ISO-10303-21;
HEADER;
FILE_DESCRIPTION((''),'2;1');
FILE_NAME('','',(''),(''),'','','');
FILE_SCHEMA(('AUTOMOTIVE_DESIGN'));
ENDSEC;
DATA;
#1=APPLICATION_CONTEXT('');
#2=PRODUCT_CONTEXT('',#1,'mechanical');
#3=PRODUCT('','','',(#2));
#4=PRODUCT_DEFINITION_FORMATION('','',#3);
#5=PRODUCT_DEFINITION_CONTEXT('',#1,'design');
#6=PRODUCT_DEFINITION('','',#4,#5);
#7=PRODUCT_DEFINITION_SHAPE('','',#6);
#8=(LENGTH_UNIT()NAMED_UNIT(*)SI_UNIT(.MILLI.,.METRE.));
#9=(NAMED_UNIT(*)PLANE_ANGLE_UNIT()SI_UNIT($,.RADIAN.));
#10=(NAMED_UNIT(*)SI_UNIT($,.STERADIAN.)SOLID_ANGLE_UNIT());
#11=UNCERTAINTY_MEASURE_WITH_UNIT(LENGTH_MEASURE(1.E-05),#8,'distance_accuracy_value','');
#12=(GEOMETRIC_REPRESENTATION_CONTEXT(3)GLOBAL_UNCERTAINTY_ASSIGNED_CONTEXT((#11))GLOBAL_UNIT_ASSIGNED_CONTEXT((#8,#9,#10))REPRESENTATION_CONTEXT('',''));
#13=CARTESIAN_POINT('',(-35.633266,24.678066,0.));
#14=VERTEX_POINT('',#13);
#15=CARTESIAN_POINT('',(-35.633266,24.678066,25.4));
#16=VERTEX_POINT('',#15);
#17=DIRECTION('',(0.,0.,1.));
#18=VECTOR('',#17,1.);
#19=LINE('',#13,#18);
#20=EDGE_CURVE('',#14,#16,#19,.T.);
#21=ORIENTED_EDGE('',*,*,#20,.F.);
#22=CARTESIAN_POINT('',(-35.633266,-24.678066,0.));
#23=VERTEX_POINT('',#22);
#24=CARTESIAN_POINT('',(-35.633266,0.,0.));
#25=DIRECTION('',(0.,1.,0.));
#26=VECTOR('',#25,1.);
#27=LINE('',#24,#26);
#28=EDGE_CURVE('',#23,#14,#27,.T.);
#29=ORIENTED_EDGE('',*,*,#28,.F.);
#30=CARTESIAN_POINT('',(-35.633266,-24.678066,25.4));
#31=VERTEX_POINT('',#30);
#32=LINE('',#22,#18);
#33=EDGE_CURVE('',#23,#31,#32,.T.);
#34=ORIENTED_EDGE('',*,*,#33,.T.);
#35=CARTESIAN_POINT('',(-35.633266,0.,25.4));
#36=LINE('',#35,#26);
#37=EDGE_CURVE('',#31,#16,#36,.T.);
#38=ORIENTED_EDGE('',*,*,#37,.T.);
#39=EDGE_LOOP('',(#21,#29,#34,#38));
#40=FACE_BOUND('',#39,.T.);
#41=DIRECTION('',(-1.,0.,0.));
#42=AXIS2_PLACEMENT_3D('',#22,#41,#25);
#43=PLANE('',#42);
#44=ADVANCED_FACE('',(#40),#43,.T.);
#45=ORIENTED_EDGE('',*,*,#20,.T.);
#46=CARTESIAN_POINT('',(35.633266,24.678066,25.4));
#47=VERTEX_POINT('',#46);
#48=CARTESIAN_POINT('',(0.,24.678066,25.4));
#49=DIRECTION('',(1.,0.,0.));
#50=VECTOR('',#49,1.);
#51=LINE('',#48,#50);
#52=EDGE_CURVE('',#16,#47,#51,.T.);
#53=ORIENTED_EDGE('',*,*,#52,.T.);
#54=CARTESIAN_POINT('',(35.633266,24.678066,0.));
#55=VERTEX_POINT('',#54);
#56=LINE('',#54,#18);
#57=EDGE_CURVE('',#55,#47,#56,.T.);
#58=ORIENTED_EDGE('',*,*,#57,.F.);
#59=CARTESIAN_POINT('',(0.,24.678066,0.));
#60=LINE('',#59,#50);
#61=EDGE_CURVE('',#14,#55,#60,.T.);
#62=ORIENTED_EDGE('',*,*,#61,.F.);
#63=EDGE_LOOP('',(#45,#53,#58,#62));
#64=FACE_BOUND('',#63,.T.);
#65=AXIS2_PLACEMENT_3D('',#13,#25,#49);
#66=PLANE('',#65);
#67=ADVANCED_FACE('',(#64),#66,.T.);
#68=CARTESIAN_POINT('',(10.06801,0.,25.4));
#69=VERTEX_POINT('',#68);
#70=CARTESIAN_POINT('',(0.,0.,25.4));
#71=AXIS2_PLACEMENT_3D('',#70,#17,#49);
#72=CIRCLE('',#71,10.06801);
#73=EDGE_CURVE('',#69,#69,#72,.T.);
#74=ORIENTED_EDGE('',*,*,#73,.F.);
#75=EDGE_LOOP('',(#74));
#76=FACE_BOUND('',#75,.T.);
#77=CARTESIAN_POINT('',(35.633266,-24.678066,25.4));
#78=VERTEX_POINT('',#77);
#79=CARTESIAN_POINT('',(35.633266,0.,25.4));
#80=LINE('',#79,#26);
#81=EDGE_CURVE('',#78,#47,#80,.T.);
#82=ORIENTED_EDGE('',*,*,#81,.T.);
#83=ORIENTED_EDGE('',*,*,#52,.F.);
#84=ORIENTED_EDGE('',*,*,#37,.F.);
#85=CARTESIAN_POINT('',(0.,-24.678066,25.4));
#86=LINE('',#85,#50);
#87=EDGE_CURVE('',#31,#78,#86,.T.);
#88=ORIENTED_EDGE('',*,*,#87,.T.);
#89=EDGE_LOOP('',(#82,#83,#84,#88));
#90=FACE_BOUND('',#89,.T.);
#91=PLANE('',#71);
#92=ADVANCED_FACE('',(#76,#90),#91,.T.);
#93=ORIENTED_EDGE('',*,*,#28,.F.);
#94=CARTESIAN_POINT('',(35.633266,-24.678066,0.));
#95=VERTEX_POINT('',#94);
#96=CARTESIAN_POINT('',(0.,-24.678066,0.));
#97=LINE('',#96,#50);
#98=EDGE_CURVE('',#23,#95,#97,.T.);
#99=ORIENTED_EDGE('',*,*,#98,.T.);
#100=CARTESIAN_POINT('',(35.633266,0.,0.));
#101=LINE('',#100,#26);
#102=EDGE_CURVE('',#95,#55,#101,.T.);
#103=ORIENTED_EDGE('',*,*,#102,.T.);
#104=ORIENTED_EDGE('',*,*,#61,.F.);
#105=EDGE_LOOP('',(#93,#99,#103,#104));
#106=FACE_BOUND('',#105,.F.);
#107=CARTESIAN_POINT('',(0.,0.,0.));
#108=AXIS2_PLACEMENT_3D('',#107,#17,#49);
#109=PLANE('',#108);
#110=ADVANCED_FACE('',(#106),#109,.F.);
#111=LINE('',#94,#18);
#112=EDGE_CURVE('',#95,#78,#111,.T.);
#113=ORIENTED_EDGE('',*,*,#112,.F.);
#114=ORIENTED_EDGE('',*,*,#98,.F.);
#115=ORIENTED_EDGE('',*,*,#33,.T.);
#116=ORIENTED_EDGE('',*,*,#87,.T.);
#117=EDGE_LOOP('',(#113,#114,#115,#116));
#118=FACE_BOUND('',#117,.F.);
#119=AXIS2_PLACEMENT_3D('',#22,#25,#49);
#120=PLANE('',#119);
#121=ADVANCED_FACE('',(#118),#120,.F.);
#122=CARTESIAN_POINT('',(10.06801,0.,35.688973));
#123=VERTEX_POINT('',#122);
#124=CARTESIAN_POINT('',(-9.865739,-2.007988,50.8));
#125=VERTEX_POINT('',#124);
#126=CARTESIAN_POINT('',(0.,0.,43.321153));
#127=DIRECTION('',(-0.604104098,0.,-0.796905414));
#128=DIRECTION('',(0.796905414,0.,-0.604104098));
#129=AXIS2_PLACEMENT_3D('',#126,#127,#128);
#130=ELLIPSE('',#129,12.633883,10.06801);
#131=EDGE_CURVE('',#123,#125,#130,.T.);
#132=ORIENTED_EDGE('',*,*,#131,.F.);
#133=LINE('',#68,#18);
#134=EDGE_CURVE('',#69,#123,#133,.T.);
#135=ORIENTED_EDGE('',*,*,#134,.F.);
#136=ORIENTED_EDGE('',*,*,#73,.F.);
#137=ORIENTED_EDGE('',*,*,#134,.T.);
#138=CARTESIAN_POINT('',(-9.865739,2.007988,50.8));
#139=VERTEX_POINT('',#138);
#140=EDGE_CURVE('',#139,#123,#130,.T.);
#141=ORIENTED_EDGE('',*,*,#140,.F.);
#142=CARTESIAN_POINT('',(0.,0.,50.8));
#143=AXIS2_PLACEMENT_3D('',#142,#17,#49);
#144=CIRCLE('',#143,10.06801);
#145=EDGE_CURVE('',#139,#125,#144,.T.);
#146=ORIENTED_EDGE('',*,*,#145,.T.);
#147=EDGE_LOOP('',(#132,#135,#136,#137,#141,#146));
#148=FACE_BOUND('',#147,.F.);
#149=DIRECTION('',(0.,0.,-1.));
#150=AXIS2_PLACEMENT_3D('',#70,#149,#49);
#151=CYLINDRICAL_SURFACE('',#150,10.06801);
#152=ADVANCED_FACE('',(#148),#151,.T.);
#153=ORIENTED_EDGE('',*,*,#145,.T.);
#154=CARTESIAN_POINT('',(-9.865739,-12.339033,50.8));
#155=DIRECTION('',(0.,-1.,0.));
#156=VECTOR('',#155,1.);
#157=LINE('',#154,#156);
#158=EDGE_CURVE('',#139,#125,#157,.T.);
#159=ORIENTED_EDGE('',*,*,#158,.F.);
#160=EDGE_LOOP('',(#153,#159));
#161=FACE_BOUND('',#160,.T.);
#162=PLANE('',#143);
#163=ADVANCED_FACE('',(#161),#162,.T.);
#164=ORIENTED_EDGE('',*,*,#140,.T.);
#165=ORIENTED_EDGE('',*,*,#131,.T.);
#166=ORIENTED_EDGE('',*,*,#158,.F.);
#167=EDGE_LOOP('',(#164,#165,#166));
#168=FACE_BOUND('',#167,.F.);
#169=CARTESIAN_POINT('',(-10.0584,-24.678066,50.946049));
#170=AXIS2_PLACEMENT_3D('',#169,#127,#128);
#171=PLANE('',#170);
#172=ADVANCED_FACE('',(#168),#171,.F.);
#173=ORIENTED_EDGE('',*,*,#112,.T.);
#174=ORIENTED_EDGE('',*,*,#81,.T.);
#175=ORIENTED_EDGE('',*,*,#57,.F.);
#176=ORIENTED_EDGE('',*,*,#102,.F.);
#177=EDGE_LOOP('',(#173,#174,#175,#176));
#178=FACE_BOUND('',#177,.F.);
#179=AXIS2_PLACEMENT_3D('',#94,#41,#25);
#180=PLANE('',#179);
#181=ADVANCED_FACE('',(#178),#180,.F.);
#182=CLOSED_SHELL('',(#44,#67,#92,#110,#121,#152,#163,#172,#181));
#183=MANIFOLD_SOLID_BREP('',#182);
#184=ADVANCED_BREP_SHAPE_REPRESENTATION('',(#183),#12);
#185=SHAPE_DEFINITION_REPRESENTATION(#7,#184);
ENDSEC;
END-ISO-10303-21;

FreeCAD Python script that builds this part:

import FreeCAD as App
import Part
import Sketcher
Q = App.Units.Quantity

doc = App.newDocument("Part")
body = doc.addObject("PartDesign::Body", "Body")

# Sketch on XY plane
sketch1 = body.newObject("Sketcher::SketchObject", "Sketch")
sketch1.AttachmentSupport = (doc.getObject("XY_Plane"), [""])
sketch1.MapMode = "FlatFace"
sketch1.addGeometry([
    Part.LineSegment(App.Vector(-36, 25, 0), App.Vector(-36, -25, 0)),
    Part.LineSegment(App.Vector(-36, -25, 0), App.Vector(36, -25, 0)),
    Part.LineSegment(App.Vector(36, -25, 0), App.Vector(36, 25, 0)),
    Part.LineSegment(App.Vector(36, 25, 0), App.Vector(-36, 25, 0)),
], False)
sketch1.addConstraint([
    Sketcher.Constraint("Coincident", 0, 2, 1, 1),
    Sketcher.Constraint("Coincident", 1, 2, 2, 1),
    Sketcher.Constraint("Coincident", 2, 2, 3, 1),
    Sketcher.Constraint("Coincident", 3, 2, 0, 1),
    Sketcher.Constraint("Vertical", 0),
    Sketcher.Constraint("Horizontal", 1),
    Sketcher.Constraint("Vertical", 2),
    Sketcher.Constraint("Horizontal", 3),
    Sketcher.Constraint("Symmetric", 0, 2, 2, 2, -1, 1),
    Sketcher.Constraint("DistanceX", 1, 1, 1, 2, 71.266532),
    Sketcher.Constraint("DistanceY", 0, 2, 0, 1, 49.356132),
])
pad1 = body.newObject("PartDesign::Pad", "Pad")
pad1.Profile = sketch1
pad1.Length = Q("1 in")

# Sketch on XY plane
sketch2 = body.newObject("Sketcher::SketchObject", "Sketch001")
sketch2.AttachmentSupport = (doc.getObject("XY_Plane"), [""])
sketch2.MapMode = "FlatFace"
sketch2.AttachmentOffset = App.Placement(App.Vector(0, 0, 1 * 25.4), App.Rotation())
sketch2.addGeometry(Part.Circle(App.Vector(0, 0, 0), App.Vector(0, 0, 1), 10), False)
sketch2.addConstraint([
    Sketcher.Constraint("Coincident", 0, 3, -1, 1),
    Sketcher.Constraint("Diameter", 0, 20.13602),
])
pad2 = body.newObject("PartDesign::Pad", "Pad001")
pad2.Profile = sketch2
pad2.Length = Q("1 in")

# Sketch on XZ plane
sketch3 = body.newObject("Sketcher::SketchObject", "Sketch002")
sketch3.AttachmentSupport = (doc.getObject("XZ_Plane"), [""])
sketch3.MapMode = "FlatFace"
sketch3.AttachmentOffset = App.Placement(App.Vector(0, 0, 24.678066), App.Rotation())
sketch3.addGeometry([
    Part.LineSegment(App.Vector(16, 51, 0), App.Vector(-10, 51, 0)),
    Part.LineSegment(App.Vector(-10, 51, 0), App.Vector(16, 31, 0)),
    Part.LineSegment(App.Vector(16, 31, 0), App.Vector(16, 51, 0)),
], False)
sketch3.addConstraint([
    Sketcher.Constraint("Coincident", 0, 2, 1, 1),
    Sketcher.Constraint("Coincident", 1, 2, 2, 1),
    Sketcher.Constraint("Coincident", 2, 2, 0, 1),
    Sketcher.Constraint("Horizontal", 0),
    Sketcher.Constraint("Vertical", 2),
    Sketcher.Constraint("DistanceX", 0, 2, -1, 1, Q("0.396 in")),
    Sketcher.Constraint("DistanceY", 2, 1, 2, 2, 19.589029),
    Sketcher.Constraint("Distance", 1, 32.426579),
    Sketcher.Constraint("DistanceY", -1, 1, 0, 2, 50.946049),
])
pocket1 = body.newObject("PartDesign::Pocket", "Pocket")
pocket1.Profile = sketch3
pocket1.Length = Q("1.82 in")

doc.recompute()
